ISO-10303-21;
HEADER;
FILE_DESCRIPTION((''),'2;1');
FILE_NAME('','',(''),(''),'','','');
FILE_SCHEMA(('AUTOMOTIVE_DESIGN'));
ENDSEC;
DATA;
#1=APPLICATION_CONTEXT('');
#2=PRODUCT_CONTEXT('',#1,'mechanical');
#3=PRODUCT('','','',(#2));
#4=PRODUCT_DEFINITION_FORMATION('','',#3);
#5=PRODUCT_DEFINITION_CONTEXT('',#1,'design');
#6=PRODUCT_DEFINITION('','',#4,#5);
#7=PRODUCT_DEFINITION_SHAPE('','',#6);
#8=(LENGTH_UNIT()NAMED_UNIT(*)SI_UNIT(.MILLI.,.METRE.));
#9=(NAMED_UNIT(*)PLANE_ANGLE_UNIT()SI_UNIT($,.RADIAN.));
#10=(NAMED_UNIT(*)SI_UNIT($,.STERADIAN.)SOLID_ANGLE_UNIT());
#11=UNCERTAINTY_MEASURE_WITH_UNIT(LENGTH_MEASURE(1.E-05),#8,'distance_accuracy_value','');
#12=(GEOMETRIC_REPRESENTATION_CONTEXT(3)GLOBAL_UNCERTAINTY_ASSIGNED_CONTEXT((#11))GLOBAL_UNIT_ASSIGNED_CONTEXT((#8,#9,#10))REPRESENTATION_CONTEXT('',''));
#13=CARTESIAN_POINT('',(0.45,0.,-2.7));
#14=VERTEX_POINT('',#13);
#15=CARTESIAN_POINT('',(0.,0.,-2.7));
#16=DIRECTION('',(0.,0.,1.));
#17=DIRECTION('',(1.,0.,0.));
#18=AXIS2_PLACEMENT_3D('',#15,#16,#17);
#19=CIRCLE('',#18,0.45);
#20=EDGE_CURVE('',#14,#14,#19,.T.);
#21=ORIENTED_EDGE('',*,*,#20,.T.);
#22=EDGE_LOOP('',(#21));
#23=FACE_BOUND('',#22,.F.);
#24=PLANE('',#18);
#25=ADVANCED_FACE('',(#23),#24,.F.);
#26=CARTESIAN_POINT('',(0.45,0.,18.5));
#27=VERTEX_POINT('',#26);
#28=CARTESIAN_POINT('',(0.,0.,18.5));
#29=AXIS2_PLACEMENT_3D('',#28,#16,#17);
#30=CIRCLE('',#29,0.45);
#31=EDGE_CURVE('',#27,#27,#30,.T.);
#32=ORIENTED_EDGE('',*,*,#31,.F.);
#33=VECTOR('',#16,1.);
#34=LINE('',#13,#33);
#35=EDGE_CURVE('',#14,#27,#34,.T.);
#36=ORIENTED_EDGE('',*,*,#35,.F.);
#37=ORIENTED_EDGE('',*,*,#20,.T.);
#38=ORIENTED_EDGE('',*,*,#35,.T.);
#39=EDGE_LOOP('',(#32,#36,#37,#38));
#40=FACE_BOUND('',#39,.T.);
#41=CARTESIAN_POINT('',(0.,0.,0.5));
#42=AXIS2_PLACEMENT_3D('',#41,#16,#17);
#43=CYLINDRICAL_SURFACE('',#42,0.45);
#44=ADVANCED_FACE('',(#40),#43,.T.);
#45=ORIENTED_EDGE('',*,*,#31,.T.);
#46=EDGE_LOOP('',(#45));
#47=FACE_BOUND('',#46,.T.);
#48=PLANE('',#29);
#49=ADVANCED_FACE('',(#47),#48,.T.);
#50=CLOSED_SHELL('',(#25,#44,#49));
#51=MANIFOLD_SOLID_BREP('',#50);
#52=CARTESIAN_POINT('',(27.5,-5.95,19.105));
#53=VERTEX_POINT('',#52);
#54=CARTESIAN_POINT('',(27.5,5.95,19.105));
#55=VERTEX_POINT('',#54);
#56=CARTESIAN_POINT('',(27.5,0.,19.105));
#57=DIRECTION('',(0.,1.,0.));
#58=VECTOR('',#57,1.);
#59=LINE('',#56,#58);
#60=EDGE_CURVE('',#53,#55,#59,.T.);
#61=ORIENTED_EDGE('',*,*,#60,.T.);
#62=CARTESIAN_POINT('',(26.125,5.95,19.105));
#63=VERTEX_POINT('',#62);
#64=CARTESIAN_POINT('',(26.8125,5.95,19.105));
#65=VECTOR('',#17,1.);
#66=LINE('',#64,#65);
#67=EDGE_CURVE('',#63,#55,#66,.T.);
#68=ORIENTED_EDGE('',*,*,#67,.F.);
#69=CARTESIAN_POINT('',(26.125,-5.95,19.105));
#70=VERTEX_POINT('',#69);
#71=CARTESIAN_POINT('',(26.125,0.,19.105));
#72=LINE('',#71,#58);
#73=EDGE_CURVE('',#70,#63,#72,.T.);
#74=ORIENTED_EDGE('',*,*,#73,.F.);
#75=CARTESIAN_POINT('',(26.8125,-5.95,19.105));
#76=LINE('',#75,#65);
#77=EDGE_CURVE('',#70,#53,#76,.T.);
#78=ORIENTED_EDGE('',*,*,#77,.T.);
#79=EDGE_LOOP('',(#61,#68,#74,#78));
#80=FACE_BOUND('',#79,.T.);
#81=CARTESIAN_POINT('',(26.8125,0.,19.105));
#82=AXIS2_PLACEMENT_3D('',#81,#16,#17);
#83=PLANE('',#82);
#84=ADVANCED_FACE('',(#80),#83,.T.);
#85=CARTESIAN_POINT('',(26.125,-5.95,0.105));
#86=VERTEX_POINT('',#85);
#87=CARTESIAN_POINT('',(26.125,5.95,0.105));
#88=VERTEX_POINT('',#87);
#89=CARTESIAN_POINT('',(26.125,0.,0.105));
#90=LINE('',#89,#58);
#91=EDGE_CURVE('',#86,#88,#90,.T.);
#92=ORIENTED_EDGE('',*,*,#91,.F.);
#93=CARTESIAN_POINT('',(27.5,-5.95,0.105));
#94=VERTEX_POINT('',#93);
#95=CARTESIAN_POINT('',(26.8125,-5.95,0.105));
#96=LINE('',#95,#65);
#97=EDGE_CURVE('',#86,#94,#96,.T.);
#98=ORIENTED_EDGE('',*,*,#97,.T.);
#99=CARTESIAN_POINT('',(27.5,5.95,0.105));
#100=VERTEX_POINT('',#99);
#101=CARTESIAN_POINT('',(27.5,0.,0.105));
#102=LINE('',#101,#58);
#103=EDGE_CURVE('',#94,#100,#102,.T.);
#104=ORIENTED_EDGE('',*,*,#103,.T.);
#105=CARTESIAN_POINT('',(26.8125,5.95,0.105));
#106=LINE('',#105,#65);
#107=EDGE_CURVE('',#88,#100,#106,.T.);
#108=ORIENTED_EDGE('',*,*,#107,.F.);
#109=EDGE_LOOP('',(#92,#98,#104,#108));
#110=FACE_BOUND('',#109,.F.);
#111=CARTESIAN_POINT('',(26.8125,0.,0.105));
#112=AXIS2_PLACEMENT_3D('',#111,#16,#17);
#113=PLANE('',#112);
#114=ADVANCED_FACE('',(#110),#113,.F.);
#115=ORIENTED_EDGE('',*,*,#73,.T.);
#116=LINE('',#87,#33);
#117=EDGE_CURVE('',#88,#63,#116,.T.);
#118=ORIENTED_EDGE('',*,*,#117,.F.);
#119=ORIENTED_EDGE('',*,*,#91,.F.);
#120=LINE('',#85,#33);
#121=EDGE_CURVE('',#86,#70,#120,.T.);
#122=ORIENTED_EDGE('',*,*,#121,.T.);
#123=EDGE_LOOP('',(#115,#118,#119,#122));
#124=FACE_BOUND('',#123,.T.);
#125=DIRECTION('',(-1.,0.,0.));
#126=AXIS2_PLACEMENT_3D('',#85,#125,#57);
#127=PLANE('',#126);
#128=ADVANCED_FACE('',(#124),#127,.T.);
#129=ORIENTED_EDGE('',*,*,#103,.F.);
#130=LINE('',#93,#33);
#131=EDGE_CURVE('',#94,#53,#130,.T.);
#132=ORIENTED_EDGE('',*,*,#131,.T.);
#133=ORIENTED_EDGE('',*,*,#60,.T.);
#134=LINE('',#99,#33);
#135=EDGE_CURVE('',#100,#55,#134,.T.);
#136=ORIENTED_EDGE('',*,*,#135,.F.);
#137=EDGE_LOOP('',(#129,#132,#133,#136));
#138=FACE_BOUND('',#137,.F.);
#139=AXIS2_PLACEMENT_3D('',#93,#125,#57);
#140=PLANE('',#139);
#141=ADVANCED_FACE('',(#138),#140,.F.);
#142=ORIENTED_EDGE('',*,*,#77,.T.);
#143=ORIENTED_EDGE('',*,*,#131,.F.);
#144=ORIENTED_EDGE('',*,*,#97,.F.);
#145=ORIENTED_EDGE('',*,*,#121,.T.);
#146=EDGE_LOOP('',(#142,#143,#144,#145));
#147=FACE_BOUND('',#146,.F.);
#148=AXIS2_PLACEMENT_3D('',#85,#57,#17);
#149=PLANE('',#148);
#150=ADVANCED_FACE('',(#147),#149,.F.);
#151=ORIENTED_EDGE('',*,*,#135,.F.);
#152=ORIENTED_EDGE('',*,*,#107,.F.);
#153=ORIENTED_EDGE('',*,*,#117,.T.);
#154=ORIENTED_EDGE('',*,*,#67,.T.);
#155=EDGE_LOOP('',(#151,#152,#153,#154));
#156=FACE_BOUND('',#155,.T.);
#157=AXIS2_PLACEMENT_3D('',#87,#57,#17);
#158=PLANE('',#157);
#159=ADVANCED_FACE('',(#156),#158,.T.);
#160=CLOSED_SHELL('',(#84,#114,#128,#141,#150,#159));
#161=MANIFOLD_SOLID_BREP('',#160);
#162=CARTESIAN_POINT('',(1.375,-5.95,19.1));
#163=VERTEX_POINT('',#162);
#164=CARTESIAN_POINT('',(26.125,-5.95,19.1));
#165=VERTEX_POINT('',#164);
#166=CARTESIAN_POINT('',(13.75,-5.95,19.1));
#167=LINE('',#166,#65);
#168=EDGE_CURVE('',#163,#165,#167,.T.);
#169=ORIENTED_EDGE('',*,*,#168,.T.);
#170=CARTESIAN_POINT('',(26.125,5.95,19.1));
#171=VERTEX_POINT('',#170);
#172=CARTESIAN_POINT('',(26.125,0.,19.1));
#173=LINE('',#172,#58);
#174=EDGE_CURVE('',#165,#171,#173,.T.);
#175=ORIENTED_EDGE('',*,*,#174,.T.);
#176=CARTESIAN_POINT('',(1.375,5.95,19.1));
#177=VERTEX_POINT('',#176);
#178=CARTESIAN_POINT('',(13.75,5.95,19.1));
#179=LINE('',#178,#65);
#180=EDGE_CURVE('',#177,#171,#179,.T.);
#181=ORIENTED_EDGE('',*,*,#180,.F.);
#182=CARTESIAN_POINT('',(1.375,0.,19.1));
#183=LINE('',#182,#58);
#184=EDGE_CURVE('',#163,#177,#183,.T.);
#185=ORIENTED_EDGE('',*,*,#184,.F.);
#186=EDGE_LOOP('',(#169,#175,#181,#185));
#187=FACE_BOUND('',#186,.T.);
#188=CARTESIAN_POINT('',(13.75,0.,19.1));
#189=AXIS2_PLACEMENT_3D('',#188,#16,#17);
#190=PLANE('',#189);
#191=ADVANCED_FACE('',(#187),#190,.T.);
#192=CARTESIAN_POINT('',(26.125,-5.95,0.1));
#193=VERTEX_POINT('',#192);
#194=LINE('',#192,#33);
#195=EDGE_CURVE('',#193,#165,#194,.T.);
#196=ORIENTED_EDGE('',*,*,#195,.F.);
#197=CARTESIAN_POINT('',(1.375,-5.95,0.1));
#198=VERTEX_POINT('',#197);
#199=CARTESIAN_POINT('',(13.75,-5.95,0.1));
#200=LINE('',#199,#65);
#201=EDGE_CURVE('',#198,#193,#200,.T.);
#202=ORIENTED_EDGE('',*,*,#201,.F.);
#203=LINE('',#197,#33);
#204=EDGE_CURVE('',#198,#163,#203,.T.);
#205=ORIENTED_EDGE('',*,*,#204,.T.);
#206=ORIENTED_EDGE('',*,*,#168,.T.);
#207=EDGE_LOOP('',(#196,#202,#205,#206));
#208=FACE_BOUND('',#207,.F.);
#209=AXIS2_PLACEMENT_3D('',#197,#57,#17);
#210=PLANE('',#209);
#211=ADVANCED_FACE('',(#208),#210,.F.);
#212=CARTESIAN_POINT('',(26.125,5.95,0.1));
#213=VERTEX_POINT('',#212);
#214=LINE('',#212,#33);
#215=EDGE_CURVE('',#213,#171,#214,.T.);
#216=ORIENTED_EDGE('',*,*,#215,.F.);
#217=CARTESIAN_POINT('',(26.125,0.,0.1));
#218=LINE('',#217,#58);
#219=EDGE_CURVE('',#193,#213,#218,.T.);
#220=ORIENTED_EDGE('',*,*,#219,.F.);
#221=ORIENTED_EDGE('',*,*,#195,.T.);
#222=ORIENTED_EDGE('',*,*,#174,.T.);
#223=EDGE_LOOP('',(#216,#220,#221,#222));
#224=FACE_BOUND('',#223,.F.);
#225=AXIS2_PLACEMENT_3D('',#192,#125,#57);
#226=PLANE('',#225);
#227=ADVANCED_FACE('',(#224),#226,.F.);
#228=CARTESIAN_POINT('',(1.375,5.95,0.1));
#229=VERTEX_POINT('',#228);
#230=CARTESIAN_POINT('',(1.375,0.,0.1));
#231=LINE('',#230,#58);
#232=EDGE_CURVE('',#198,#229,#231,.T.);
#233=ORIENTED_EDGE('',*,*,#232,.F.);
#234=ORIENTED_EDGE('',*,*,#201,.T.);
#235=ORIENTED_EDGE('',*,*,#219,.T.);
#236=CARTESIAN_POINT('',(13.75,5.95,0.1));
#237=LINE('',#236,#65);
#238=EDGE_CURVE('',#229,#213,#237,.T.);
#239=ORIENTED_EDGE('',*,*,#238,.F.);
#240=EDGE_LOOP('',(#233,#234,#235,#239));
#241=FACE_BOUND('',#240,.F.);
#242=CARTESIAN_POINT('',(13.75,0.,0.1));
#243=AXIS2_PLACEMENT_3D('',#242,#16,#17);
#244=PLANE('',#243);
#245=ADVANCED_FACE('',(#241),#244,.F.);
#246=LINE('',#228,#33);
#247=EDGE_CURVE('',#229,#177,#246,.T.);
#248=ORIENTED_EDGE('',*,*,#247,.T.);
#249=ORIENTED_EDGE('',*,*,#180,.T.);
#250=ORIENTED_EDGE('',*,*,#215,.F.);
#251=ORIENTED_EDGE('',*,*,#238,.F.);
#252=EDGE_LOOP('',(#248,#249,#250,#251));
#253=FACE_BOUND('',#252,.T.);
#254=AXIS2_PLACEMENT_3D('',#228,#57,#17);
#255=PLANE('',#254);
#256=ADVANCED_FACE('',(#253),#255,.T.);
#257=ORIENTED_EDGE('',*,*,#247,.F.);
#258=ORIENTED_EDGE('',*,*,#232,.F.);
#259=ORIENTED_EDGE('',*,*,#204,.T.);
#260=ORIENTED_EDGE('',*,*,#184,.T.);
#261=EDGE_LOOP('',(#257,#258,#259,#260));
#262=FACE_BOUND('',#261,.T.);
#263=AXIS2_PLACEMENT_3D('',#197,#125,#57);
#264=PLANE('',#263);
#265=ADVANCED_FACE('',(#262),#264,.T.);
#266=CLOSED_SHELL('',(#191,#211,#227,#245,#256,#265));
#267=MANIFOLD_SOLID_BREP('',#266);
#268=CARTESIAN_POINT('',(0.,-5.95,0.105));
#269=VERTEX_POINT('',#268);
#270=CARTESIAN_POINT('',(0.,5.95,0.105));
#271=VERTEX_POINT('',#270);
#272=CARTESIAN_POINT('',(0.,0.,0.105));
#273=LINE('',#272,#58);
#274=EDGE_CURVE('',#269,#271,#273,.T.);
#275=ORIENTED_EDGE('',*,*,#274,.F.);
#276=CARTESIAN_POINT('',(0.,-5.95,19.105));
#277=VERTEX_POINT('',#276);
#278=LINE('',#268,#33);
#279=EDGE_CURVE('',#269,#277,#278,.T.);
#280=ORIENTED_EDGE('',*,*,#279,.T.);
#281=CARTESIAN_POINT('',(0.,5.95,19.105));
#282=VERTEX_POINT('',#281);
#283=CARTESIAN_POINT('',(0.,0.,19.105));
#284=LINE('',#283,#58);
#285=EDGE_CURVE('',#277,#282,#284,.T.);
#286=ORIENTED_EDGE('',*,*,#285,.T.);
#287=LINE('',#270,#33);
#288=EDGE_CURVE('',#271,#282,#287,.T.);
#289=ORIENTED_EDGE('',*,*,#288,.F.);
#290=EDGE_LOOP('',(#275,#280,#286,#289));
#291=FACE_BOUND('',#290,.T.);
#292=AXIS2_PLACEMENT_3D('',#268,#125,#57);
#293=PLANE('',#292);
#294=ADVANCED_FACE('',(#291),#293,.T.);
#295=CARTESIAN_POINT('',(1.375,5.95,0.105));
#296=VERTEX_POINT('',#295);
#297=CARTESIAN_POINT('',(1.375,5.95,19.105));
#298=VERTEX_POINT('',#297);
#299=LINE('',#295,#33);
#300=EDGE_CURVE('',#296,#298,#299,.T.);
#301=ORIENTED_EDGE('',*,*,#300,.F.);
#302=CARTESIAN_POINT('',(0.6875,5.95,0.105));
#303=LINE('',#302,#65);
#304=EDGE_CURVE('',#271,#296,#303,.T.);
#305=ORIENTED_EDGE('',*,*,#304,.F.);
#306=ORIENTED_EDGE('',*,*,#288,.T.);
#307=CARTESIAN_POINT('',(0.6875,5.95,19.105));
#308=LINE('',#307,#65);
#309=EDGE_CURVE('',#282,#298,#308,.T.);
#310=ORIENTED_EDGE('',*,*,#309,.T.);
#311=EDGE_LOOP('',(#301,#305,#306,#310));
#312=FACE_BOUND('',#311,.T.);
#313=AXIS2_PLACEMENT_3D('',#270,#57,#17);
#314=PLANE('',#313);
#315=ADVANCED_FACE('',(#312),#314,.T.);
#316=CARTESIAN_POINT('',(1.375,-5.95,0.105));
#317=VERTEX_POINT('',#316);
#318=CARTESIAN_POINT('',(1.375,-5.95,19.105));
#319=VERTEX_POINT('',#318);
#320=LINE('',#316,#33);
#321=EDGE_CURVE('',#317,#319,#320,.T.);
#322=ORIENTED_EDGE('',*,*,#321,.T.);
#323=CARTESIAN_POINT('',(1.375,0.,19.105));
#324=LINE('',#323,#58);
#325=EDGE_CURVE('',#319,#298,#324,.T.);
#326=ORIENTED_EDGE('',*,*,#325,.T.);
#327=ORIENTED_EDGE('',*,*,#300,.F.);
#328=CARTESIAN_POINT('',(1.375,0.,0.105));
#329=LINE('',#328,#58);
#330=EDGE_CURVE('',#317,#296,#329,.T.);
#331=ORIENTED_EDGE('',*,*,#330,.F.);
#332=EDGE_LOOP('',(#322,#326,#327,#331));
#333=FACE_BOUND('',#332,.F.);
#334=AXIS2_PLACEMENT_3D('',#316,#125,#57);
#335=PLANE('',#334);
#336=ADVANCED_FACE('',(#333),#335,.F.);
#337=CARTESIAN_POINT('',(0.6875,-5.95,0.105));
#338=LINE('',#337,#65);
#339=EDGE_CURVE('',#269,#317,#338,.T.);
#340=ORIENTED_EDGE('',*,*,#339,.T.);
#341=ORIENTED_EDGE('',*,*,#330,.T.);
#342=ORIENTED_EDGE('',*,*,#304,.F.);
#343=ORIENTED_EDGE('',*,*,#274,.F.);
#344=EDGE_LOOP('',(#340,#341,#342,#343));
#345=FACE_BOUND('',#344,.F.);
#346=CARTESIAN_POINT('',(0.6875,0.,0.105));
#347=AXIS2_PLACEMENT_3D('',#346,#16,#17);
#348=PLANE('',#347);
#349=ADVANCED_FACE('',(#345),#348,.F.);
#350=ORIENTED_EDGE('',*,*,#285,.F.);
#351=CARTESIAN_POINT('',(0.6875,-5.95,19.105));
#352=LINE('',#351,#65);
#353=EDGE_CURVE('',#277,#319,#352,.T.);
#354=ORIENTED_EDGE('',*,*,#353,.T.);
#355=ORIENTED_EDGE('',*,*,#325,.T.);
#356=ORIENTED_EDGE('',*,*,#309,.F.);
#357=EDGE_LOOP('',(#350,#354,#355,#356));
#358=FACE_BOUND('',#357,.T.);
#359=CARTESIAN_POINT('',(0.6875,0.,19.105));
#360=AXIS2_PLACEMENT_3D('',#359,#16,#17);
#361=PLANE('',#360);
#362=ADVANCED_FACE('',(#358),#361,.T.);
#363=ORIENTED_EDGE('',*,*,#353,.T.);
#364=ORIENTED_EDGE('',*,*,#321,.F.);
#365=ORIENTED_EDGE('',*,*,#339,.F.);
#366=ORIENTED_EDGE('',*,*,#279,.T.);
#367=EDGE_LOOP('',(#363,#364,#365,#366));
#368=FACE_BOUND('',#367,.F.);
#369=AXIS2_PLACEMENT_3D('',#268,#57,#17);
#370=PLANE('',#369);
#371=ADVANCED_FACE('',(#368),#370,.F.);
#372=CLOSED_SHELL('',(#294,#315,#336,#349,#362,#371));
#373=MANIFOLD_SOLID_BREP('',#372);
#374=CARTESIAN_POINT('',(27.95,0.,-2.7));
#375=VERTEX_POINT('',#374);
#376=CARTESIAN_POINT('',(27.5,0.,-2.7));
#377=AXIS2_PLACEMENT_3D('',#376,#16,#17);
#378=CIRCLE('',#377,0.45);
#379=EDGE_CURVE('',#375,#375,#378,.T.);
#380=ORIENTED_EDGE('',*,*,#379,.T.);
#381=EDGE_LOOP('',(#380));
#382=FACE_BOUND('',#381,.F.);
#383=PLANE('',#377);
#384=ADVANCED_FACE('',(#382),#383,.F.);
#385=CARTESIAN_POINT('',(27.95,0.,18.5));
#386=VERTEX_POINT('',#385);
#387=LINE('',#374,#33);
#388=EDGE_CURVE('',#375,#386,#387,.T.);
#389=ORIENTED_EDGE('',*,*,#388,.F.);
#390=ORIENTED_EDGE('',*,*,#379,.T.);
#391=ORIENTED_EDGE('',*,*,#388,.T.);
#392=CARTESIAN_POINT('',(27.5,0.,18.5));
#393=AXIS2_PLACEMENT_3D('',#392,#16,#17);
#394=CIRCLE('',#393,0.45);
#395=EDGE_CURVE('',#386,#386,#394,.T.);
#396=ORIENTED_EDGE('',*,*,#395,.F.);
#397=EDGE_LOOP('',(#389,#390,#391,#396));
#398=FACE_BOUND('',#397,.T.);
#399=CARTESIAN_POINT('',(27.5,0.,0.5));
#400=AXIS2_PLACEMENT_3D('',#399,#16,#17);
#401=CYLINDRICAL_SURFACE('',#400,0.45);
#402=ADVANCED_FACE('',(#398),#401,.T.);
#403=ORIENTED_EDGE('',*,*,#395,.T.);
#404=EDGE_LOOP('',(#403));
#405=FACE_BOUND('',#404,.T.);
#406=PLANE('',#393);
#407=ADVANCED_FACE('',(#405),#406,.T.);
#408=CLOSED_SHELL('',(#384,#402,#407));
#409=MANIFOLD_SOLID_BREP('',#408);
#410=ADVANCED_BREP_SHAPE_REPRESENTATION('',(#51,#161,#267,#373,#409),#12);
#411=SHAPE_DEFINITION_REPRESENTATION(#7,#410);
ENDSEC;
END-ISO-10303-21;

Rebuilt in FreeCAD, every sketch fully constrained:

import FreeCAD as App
import Part
import Sketcher
from FreeCAD import Vector
Q = App.Units.Quantity


def add_polygon(sketch, points):
    """Adds a closed chain of lines whose ends are joined by coincident constraints."""
    first, n = sketch.GeometryCount, len(points)
    for a, b in zip(points, points[1:] + points[:1]):
        sketch.addGeometry(Part.LineSegment(App.Vector(*a, 0), App.Vector(*b, 0)), False)
    for i in range(n):
        sketch.addConstraint(Sketcher.Constraint("Coincident", first + i, 2, first + (i + 1) % n, 1))

doc = App.newDocument("Part")
body = doc.addObject("PartDesign::Body", "Body")

# Sketch on XY plane
sketch1 = body.newObject("Sketcher::SketchObject", "Sketch")
sketch1.AttachmentSupport = (doc.getObject("XY_Plane"), [""])
sketch1.MapMode = "FlatFace"
sketch1.AttachmentOffset = App.Placement(Vector(0, 0, 0.1), App.Rotation())
add_polygon(sketch1, [(1, 6), (1, -6), (26, -6), (26, 6)])  # lines 0-3
sketch1.addConstraint([
    Sketcher.Constraint("Vertical", 0),
    Sketcher.Constraint("Horizontal", 1),
    Sketcher.Constraint("Vertical", 2),
    Sketcher.Constraint("Horizontal", 3),
    Sketcher.Constraint("DistanceY", 0, 2, 0, 1, Q("11.9 mm")),
    Sketcher.Constraint("DistanceX", 1, 1, 1, 2, Q("24.75 mm")),
    Sketcher.Constraint("DistanceY", 0, 2, -1, 1, Q("5.95 mm")),
    Sketcher.Constraint("DistanceX", -1, 1, 0, 2, Q("1.375 mm")),
])
pad1 = body.newObject("PartDesign::Pad", "Pad")
pad1.Profile = sketch1
pad1.Length = 19
body2 = doc.addObject("PartDesign::Body", "Body001")
body2.AllowCompound = True

# Sketch on XY plane
sketch2 = body2.newObject("Sketcher::SketchObject", "Sketch001")
sketch2.AttachmentSupport = (doc.getObject("XY_Plane001"), [""])
sketch2.MapMode = "FlatFace"
sketch2.AttachmentOffset = App.Placement(Vector(0, 0, 0.5), App.Rotation())
sketch2.addGeometry([
    Part.Circle(Vector(0, 0, 0), Vector(0, 0, 1), 0.45),
    Part.Circle(Vector(27.5, 0, 0), Vector(0, 0, 1), 0.45),
], False)
sketch2.addConstraint([
    Sketcher.Constraint("Coincident", 0, 3, -1, 1),
    Sketcher.Constraint("Equal", 0, 1),
    Sketcher.Constraint("PointOnObject", 1, 3, -1),
    Sketcher.Constraint("Diameter", 0, Q("0.9 mm")),
    Sketcher.Constraint("DistanceX", -1, 1, 1, 3, Q("27.5 mm")),
])
pad2 = body2.newObject("PartDesign::Pad", "Pad001")
pad2.Profile = sketch2
pad2.Type = "TwoLengths"
pad2.Length = 18
pad2.Length2 = 3.2
body3 = doc.addObject("PartDesign::Body", "Body002")
body3.AllowCompound = True

# Sketch on XY plane
sketch3 = body3.newObject("Sketcher::SketchObject", "Sketch002")
sketch3.AttachmentSupport = (doc.getObject("XY_Plane002"), [""])
sketch3.MapMode = "FlatFace"
sketch3.AttachmentOffset = App.Placement(Vector(0, 0, 0.105), App.Rotation())
add_polygon(sketch3, [(0, 6), (0, -6), (1.4, -6), (1.4, 6)])  # lines 0-3
add_polygon(sketch3, [(26.1, 6), (26.1, -6), (27.5, -6), (27.5, 6)])  # lines 4-7
sketch3.addConstraint([
    Sketcher.Constraint("Vertical", 0),
    Sketcher.Constraint("Horizontal", 1),
    Sketcher.Constraint("Vertical", 2),
    Sketcher.Constraint("Horizontal", 3),
    Sketcher.Constraint("Vertical", 4),
    Sketcher.Constraint("Horizontal", 5),
    Sketcher.Constraint("Vertical", 6),
    Sketcher.Constraint("Horizontal", 7),
    Sketcher.Constraint("Symmetric", 0, 2, 3, 2, -1, 1),
    Sketcher.Constraint("Horizontal", 1, 2, 4, 2),
    Sketcher.Constraint("Horizontal", 3, 2, 6, 2),
    Sketcher.Constraint("Equal", 3, 5),
    Sketcher.Constraint("DistanceY", 0, 2, 0, 1, Q("11.9 mm")),
    Sketcher.Constraint("DistanceX", -1, 1, 5, 2, Q("27.5 mm")),
    Sketcher.Constraint("DistanceX", 1, 1, 1, 2, Q("1.375 mm")),
])
pad3 = body3.newObject("PartDesign::Pad", "Pad002")
pad3.Profile = sketch3
pad3.Length = 19

doc.recompute()
